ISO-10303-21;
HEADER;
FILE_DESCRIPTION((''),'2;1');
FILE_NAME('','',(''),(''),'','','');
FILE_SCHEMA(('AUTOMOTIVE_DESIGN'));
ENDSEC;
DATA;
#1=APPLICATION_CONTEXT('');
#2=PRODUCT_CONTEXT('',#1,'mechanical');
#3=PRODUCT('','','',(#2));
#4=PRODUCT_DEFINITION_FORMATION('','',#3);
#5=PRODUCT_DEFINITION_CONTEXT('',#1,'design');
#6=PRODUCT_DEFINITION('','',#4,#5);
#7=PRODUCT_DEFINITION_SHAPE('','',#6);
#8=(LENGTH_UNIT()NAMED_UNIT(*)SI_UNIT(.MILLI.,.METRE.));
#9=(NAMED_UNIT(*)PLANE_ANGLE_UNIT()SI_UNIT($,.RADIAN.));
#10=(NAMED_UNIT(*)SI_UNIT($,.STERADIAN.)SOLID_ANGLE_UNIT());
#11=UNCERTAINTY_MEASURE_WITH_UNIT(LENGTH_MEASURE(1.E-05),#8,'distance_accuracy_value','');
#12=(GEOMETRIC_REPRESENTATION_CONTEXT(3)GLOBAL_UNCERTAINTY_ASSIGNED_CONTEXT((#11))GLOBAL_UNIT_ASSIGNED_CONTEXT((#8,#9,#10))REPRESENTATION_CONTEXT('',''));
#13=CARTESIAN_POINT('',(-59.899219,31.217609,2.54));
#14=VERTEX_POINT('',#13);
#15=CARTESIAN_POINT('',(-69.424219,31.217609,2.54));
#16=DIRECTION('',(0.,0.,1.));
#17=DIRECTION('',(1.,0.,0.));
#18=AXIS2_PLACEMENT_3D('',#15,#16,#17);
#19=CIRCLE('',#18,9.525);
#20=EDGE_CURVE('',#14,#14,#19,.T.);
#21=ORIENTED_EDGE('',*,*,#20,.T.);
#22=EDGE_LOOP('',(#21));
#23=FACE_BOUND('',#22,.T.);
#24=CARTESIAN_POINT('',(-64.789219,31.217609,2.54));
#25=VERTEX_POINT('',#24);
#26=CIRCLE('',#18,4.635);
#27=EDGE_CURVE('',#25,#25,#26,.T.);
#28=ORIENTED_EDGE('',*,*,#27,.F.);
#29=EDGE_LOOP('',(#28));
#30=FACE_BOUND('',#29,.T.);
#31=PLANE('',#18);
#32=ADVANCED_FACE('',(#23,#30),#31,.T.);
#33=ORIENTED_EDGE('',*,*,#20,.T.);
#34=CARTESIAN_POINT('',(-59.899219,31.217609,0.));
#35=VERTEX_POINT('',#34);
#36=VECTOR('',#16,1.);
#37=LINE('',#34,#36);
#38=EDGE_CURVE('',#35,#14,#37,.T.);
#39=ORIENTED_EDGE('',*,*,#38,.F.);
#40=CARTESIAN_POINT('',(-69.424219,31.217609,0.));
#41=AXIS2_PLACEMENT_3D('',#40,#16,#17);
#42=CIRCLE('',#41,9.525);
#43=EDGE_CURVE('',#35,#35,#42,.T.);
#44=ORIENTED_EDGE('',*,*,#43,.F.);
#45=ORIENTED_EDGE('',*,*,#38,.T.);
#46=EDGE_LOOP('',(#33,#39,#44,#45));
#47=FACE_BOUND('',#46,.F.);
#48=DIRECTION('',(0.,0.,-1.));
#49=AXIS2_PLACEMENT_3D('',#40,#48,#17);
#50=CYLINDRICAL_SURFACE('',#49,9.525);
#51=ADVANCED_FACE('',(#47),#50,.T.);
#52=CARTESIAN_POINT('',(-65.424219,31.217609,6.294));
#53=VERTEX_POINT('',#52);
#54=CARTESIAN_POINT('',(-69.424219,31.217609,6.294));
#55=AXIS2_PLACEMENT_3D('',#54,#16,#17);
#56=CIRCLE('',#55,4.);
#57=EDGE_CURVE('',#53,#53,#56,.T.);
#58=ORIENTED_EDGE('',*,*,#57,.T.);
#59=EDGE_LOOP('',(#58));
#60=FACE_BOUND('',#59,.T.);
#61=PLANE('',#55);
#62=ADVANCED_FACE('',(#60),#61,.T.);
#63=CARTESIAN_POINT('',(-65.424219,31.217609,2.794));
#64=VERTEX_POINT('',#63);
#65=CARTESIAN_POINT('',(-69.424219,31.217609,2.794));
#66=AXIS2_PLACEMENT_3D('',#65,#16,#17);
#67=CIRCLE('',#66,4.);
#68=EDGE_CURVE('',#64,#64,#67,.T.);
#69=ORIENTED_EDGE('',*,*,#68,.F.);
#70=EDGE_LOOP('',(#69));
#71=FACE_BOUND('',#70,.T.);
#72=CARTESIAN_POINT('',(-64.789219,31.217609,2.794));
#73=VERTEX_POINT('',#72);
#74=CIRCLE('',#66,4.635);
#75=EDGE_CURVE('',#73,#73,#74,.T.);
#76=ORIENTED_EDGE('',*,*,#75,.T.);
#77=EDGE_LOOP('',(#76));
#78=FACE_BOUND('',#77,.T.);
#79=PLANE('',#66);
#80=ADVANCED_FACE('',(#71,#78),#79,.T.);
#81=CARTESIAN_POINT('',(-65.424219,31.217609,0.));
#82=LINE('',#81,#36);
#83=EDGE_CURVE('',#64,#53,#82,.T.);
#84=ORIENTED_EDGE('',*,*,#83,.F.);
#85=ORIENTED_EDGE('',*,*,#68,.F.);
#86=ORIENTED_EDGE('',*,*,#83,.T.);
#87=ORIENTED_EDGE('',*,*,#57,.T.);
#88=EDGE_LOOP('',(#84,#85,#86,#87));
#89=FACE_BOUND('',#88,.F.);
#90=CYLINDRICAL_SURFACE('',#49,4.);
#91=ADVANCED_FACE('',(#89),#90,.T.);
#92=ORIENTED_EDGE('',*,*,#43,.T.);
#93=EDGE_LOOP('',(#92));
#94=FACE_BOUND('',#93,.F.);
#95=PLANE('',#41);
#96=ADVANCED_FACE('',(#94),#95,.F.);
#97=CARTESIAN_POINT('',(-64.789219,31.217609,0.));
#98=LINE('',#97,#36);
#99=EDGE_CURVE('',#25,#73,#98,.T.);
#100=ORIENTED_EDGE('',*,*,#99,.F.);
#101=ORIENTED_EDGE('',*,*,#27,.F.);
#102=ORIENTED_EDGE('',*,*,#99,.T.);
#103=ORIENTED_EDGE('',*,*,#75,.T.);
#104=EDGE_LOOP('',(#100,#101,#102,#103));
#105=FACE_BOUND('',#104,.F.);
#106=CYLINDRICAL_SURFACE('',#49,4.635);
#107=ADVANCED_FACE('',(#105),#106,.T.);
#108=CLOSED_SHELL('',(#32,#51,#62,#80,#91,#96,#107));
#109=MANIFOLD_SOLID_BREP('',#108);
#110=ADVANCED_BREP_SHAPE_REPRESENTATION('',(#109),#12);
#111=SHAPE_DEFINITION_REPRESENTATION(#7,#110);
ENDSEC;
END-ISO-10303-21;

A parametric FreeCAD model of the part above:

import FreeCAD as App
import Part
import Sketcher
from FreeCAD import Vector
Q = App.Units.Quantity

doc = App.newDocument("Part")
body = doc.addObject("PartDesign::Body", "Body")

# Sketch on XY plane
sketch1 = body.newObject("Sketcher::SketchObject", "Sketch")
sketch1.AttachmentSupport = (doc.getObject("XY_Plane"), [""])
sketch1.MapMode = "FlatFace"
sketch1.addGeometry([
    Part.Circle(Vector(-69.424219, 31.217609, 0), Vector(0, 0, 1), 9.525),
    Part.Circle(Vector(-69.424219, 31.217609, 0), Vector(0, 0, 1), 4.635),
], False)
sketch1.addConstraint([
    Sketcher.Constraint("Coincident", 1, 3, 0, 3),
    Sketcher.Constraint("Diameter", 0, Q("0.75 in")),
    Sketcher.Constraint("Diameter", 1, Q("9.27 mm")),
    Sketcher.Constraint("DistanceX", 0, 3, -1, 1, Q("69.424219 mm")),
    Sketcher.Constraint("DistanceY", -1, 1, 0, 3, Q("31.217609 mm")),
])
pad1 = body.newObject("PartDesign::Pad", "Pad")
pad1.Profile = sketch1
pad1.Length = Q("0.1 in")

# Sketch on XY plane
sketch2 = body.newObject("Sketcher::SketchObject", "Sketch001")
sketch2.AttachmentSupport = (doc.getObject("XY_Plane"), [""])
sketch2.MapMode = "FlatFace"
sketch2.addGeometry([
    Part.Circle(Vector(-69.424219, 31.217609, 0), Vector(0, 0, 1), 4.635),
    Part.Circle(Vector(-69.424219, 31.217609, 0), Vector(0, 0, 1), 4),
], False)
sketch2.addConstraint([
    Sketcher.Constraint("Coincident", 1, 3, 0, 3),
    Sketcher.Constraint("Diameter", 0, Q("9.27 mm")),
    Sketcher.Constraint("Diameter", 1, Q("8 mm")),
    Sketcher.Constraint("DistanceX", 0, 3, -1, 1, Q("69.424219 mm")),
    Sketcher.Constraint("DistanceY", -1, 1, 0, 3, Q("31.217609 mm")),
])
pad2 = body.newObject("PartDesign::Pad", "Pad001")
pad2.Profile = sketch2
pad2.Length = Q("0.11 in")

# Sketch on XY plane
sketch3 = body.newObject("Sketcher::SketchObject", "Sketch002")
sketch3.AttachmentSupport = (doc.getObject("XY_Plane"), [""])
sketch3.MapMode = "FlatFace"
sketch3.addGeometry(Part.Circle(Vector(-69.424219, 31.217609, 0), Vector(0, 0, 1), 4), False)
sketch3.addConstraint([
    Sketcher.Constraint("Diameter", 0, Q("8 mm")),
    Sketcher.Constraint("DistanceX", 0, 3, -1, 1, Q("69.424219 mm")),
    Sketcher.Constraint("DistanceY", -1, 1, 0, 3, Q("31.217609 mm")),
])
pad3 = body.newObject("PartDesign::Pad", "Pad002")
pad3.Profile = sketch3
pad3.Length = 6.294

doc.recompute()
